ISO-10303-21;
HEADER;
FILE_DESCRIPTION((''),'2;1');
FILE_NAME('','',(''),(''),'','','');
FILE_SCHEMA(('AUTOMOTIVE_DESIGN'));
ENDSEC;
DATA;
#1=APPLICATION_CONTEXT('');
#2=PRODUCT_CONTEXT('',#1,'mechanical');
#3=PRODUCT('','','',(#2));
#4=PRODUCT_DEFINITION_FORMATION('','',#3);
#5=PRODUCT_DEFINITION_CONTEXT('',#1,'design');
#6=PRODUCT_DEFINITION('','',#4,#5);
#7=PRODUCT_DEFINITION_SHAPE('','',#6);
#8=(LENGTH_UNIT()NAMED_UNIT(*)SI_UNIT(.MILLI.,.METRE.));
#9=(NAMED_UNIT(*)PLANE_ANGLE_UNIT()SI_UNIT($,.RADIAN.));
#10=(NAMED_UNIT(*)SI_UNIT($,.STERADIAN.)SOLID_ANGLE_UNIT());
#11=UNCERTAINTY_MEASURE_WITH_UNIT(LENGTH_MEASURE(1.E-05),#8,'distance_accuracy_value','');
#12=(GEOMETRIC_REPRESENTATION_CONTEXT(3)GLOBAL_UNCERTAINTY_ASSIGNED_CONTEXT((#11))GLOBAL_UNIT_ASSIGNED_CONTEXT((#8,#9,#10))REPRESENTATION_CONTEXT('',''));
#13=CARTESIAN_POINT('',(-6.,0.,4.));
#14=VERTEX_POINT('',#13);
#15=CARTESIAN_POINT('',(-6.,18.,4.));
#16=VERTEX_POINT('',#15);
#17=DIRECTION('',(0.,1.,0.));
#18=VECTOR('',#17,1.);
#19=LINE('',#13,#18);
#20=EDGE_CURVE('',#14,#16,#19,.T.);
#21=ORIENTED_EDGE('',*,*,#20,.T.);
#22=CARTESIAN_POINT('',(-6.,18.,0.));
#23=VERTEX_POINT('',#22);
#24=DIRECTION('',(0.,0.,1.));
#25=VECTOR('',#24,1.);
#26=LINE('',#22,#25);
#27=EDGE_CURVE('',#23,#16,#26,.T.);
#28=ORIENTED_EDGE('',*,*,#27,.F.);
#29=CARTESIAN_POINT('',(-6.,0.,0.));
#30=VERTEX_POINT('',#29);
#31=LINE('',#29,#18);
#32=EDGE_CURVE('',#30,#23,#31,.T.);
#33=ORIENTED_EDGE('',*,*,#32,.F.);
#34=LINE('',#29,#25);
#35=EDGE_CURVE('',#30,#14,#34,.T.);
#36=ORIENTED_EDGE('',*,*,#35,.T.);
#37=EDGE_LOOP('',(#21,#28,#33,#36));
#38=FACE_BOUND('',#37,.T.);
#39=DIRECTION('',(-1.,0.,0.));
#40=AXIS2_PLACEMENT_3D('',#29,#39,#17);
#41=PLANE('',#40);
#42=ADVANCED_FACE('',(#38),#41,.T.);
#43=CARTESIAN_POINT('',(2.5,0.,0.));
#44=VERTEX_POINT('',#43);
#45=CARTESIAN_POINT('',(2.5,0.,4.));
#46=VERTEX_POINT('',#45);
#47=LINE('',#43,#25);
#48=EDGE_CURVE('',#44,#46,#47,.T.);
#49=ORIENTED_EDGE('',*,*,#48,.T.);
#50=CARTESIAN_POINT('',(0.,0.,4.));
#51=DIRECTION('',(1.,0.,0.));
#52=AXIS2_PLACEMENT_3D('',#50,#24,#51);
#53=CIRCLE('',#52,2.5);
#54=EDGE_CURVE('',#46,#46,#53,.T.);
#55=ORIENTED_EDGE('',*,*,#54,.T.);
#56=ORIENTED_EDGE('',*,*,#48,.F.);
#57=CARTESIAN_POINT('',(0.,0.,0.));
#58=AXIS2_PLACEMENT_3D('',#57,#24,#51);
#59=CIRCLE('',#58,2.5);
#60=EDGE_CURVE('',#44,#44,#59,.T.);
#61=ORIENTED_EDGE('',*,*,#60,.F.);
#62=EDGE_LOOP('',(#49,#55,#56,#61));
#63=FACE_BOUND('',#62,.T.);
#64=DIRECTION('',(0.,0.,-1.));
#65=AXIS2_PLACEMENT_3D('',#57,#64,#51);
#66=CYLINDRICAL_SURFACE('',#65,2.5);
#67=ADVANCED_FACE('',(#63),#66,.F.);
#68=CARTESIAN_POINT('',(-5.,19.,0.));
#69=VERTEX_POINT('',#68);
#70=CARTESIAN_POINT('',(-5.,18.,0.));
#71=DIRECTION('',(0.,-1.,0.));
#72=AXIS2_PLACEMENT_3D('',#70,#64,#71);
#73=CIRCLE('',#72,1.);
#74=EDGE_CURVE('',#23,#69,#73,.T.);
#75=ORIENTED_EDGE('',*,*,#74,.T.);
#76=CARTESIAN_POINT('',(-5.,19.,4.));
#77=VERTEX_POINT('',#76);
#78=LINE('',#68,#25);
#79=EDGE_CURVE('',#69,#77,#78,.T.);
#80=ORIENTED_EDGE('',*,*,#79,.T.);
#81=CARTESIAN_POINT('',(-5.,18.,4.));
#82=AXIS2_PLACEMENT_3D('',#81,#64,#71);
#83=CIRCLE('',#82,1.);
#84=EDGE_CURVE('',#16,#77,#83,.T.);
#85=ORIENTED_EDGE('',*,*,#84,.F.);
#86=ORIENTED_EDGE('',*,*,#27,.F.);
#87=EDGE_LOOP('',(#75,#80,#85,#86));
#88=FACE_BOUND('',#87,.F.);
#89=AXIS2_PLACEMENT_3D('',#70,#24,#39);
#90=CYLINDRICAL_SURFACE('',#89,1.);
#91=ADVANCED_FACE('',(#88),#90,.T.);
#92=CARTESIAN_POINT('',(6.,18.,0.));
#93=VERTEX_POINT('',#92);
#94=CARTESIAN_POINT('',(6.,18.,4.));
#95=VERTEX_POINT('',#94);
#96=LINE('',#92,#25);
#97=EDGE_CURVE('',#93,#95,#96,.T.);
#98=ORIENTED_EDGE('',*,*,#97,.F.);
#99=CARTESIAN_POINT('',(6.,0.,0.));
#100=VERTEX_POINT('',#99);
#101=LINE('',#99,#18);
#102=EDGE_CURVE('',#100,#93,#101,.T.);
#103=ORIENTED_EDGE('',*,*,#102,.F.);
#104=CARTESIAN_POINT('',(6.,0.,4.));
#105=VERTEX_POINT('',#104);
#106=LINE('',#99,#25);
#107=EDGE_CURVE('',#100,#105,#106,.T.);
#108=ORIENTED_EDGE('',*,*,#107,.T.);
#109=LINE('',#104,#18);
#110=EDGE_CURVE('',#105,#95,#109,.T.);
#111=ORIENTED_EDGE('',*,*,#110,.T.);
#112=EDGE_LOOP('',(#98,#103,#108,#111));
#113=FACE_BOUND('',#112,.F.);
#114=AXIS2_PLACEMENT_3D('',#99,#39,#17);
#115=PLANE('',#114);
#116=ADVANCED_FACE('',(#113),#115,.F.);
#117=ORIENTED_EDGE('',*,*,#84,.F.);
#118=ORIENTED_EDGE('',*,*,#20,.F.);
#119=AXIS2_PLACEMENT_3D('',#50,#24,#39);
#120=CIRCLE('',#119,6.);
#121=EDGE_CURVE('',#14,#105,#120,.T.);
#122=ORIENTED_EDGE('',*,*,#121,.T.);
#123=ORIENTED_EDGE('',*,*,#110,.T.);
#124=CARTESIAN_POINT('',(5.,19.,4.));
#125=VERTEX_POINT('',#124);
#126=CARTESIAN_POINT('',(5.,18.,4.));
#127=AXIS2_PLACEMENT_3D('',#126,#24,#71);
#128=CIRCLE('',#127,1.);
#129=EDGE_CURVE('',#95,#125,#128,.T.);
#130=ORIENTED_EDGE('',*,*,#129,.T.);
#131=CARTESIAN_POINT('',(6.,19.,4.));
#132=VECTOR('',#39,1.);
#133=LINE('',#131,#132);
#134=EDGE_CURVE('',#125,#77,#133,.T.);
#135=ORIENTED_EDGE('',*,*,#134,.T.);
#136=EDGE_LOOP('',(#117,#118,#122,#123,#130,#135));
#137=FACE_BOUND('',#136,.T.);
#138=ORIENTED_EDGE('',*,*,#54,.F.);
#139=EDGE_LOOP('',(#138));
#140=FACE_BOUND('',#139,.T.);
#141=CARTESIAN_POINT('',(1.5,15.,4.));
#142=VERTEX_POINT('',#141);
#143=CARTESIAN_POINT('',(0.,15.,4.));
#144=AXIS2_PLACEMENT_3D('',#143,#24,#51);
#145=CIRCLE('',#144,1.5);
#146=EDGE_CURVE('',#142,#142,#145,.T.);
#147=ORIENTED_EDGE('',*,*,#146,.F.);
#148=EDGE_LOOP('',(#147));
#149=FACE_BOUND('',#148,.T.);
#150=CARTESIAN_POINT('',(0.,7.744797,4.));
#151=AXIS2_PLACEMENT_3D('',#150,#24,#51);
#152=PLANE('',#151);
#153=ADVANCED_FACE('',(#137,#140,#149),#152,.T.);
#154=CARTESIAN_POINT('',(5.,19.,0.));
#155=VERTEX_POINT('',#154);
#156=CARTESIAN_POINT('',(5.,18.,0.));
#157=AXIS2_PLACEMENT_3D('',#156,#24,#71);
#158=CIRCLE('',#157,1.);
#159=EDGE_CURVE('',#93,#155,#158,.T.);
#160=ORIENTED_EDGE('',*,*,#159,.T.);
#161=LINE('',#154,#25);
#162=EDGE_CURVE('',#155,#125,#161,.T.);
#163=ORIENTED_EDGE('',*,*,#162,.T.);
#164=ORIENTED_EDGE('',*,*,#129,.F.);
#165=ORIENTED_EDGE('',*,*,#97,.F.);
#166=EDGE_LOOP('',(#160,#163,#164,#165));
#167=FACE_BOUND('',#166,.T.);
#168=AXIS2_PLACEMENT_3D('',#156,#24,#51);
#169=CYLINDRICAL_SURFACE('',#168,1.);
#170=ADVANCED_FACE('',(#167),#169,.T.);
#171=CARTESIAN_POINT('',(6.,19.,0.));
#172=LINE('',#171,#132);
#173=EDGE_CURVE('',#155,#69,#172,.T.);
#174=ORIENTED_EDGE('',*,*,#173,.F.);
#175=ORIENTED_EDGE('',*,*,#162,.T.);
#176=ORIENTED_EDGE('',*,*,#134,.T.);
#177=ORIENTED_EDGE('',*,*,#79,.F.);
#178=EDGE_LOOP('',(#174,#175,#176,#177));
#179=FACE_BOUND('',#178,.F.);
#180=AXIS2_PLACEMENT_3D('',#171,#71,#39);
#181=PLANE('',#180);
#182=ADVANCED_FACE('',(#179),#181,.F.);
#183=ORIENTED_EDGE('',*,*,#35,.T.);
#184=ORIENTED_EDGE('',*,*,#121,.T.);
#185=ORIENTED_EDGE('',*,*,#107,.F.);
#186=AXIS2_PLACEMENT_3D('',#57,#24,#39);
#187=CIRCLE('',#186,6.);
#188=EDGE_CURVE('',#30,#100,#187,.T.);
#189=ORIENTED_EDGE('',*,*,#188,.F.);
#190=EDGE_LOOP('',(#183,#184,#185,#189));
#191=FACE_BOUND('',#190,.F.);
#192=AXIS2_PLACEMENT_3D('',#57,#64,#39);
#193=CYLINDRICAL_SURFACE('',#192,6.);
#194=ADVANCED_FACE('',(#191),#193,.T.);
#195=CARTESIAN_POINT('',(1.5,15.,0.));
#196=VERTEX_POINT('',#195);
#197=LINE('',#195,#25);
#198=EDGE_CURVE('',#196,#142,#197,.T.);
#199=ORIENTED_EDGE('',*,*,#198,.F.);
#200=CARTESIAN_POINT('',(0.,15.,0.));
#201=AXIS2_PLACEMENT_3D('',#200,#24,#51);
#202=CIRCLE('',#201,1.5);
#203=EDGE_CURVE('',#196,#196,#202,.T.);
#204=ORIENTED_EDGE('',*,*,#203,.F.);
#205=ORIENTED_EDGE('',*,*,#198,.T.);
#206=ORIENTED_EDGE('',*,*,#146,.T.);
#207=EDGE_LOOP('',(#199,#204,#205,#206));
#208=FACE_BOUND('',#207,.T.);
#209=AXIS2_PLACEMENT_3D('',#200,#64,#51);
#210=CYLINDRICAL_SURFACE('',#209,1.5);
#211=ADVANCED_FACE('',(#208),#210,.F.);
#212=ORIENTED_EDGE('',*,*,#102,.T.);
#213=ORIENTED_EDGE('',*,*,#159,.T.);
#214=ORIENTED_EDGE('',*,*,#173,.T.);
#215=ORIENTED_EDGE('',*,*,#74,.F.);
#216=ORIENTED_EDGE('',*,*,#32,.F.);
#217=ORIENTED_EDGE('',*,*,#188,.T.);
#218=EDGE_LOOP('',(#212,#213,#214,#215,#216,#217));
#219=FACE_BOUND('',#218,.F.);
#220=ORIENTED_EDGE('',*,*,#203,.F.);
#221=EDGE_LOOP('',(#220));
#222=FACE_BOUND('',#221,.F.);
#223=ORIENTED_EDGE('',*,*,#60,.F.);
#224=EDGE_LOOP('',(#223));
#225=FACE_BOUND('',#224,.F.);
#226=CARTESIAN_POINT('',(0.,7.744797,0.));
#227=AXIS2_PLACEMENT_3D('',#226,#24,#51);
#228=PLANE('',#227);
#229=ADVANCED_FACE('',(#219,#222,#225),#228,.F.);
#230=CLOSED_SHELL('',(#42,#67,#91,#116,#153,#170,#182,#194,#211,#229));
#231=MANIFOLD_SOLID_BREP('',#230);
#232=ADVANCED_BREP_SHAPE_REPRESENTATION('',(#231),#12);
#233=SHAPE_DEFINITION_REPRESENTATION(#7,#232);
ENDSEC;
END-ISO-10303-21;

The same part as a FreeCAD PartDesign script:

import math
import FreeCAD as App
import Part
import Sketcher

V = App.Vector


def edges_at(feature, points):
    """Names of the edges that pass closest to the given points."""
    edges = feature.Shape.Edges
    near = lambda p: min(range(len(edges)), key=lambda i: edges[i].distToShape(Part.Vertex(*p))[0])
    return sorted({f"Edge{near(p) + 1}" for p in points})

doc = App.newDocument("Part")
body = doc.addObject("PartDesign::Body", "Body")

sketch1 = body.newObject("Sketcher::SketchObject", "Sketch")
sketch1.AttachmentSupport = (doc.getObject("XY_Plane"), [""])
sketch1.MapMode = "FlatFace"
sketch1.addGeometry([
    Part.ArcOfCircle(Part.Circle(V(0, 0, 0), V(0, 0, 1), 6), math.radians(180), math.radians(360)),
    Part.LineSegment(V(6, 0, 0), V(6, 19, 0)),
    Part.LineSegment(V(6, 19, 0), V(-6, 19, 0)),
    Part.LineSegment(V(-6, 19, 0), V(-6, 0, 0)),
    Part.Circle(V(0, 0, 0), V(0, 0, 1), 2.5),
    Part.Circle(V(0, 15, 0), V(0, 0, 1), 1.5),
], False)
sketch1.addConstraint([
    Sketcher.Constraint("Tangent", 0, 2, 1, 1),
    Sketcher.Constraint("Coincident", 1, 2, 2, 1),
    Sketcher.Constraint("Coincident", 2, 2, 3, 1),
    Sketcher.Constraint("Tangent", 3, 2, 0, 1),
    Sketcher.Constraint("Vertical", 1),
    Sketcher.Constraint("Horizontal", 2),
    Sketcher.Constraint("Vertical", 3),
    Sketcher.Constraint("Coincident", 0, 3, -1, 1),
    Sketcher.Constraint("Coincident", 4, 3, -1, 1),
    Sketcher.Constraint("PointOnObject", 5, 3, -2),
    Sketcher.Constraint("Diameter", 4, 5.0),
    Sketcher.Constraint("Diameter", 5, 3.0),
    Sketcher.Constraint("Radius", 0, 6.0),
    Sketcher.Constraint("DistanceY", 1, 1, 1, 2, 19.0),
    Sketcher.Constraint("DistanceY", -1, 1, 5, 3, 15.0),
])
pad1 = body.newObject("PartDesign::Pad", "Pad")
pad1.Profile = sketch1
pad1.Length = 4
doc.recompute()

fillet = body.newObject("PartDesign::Fillet", "Fillet")
fillet.Base = (pad1, edges_at(pad1, [(-6, 19, 2), (6, 19, 2)]))
fillet.Radius = 1

doc.recompute()
